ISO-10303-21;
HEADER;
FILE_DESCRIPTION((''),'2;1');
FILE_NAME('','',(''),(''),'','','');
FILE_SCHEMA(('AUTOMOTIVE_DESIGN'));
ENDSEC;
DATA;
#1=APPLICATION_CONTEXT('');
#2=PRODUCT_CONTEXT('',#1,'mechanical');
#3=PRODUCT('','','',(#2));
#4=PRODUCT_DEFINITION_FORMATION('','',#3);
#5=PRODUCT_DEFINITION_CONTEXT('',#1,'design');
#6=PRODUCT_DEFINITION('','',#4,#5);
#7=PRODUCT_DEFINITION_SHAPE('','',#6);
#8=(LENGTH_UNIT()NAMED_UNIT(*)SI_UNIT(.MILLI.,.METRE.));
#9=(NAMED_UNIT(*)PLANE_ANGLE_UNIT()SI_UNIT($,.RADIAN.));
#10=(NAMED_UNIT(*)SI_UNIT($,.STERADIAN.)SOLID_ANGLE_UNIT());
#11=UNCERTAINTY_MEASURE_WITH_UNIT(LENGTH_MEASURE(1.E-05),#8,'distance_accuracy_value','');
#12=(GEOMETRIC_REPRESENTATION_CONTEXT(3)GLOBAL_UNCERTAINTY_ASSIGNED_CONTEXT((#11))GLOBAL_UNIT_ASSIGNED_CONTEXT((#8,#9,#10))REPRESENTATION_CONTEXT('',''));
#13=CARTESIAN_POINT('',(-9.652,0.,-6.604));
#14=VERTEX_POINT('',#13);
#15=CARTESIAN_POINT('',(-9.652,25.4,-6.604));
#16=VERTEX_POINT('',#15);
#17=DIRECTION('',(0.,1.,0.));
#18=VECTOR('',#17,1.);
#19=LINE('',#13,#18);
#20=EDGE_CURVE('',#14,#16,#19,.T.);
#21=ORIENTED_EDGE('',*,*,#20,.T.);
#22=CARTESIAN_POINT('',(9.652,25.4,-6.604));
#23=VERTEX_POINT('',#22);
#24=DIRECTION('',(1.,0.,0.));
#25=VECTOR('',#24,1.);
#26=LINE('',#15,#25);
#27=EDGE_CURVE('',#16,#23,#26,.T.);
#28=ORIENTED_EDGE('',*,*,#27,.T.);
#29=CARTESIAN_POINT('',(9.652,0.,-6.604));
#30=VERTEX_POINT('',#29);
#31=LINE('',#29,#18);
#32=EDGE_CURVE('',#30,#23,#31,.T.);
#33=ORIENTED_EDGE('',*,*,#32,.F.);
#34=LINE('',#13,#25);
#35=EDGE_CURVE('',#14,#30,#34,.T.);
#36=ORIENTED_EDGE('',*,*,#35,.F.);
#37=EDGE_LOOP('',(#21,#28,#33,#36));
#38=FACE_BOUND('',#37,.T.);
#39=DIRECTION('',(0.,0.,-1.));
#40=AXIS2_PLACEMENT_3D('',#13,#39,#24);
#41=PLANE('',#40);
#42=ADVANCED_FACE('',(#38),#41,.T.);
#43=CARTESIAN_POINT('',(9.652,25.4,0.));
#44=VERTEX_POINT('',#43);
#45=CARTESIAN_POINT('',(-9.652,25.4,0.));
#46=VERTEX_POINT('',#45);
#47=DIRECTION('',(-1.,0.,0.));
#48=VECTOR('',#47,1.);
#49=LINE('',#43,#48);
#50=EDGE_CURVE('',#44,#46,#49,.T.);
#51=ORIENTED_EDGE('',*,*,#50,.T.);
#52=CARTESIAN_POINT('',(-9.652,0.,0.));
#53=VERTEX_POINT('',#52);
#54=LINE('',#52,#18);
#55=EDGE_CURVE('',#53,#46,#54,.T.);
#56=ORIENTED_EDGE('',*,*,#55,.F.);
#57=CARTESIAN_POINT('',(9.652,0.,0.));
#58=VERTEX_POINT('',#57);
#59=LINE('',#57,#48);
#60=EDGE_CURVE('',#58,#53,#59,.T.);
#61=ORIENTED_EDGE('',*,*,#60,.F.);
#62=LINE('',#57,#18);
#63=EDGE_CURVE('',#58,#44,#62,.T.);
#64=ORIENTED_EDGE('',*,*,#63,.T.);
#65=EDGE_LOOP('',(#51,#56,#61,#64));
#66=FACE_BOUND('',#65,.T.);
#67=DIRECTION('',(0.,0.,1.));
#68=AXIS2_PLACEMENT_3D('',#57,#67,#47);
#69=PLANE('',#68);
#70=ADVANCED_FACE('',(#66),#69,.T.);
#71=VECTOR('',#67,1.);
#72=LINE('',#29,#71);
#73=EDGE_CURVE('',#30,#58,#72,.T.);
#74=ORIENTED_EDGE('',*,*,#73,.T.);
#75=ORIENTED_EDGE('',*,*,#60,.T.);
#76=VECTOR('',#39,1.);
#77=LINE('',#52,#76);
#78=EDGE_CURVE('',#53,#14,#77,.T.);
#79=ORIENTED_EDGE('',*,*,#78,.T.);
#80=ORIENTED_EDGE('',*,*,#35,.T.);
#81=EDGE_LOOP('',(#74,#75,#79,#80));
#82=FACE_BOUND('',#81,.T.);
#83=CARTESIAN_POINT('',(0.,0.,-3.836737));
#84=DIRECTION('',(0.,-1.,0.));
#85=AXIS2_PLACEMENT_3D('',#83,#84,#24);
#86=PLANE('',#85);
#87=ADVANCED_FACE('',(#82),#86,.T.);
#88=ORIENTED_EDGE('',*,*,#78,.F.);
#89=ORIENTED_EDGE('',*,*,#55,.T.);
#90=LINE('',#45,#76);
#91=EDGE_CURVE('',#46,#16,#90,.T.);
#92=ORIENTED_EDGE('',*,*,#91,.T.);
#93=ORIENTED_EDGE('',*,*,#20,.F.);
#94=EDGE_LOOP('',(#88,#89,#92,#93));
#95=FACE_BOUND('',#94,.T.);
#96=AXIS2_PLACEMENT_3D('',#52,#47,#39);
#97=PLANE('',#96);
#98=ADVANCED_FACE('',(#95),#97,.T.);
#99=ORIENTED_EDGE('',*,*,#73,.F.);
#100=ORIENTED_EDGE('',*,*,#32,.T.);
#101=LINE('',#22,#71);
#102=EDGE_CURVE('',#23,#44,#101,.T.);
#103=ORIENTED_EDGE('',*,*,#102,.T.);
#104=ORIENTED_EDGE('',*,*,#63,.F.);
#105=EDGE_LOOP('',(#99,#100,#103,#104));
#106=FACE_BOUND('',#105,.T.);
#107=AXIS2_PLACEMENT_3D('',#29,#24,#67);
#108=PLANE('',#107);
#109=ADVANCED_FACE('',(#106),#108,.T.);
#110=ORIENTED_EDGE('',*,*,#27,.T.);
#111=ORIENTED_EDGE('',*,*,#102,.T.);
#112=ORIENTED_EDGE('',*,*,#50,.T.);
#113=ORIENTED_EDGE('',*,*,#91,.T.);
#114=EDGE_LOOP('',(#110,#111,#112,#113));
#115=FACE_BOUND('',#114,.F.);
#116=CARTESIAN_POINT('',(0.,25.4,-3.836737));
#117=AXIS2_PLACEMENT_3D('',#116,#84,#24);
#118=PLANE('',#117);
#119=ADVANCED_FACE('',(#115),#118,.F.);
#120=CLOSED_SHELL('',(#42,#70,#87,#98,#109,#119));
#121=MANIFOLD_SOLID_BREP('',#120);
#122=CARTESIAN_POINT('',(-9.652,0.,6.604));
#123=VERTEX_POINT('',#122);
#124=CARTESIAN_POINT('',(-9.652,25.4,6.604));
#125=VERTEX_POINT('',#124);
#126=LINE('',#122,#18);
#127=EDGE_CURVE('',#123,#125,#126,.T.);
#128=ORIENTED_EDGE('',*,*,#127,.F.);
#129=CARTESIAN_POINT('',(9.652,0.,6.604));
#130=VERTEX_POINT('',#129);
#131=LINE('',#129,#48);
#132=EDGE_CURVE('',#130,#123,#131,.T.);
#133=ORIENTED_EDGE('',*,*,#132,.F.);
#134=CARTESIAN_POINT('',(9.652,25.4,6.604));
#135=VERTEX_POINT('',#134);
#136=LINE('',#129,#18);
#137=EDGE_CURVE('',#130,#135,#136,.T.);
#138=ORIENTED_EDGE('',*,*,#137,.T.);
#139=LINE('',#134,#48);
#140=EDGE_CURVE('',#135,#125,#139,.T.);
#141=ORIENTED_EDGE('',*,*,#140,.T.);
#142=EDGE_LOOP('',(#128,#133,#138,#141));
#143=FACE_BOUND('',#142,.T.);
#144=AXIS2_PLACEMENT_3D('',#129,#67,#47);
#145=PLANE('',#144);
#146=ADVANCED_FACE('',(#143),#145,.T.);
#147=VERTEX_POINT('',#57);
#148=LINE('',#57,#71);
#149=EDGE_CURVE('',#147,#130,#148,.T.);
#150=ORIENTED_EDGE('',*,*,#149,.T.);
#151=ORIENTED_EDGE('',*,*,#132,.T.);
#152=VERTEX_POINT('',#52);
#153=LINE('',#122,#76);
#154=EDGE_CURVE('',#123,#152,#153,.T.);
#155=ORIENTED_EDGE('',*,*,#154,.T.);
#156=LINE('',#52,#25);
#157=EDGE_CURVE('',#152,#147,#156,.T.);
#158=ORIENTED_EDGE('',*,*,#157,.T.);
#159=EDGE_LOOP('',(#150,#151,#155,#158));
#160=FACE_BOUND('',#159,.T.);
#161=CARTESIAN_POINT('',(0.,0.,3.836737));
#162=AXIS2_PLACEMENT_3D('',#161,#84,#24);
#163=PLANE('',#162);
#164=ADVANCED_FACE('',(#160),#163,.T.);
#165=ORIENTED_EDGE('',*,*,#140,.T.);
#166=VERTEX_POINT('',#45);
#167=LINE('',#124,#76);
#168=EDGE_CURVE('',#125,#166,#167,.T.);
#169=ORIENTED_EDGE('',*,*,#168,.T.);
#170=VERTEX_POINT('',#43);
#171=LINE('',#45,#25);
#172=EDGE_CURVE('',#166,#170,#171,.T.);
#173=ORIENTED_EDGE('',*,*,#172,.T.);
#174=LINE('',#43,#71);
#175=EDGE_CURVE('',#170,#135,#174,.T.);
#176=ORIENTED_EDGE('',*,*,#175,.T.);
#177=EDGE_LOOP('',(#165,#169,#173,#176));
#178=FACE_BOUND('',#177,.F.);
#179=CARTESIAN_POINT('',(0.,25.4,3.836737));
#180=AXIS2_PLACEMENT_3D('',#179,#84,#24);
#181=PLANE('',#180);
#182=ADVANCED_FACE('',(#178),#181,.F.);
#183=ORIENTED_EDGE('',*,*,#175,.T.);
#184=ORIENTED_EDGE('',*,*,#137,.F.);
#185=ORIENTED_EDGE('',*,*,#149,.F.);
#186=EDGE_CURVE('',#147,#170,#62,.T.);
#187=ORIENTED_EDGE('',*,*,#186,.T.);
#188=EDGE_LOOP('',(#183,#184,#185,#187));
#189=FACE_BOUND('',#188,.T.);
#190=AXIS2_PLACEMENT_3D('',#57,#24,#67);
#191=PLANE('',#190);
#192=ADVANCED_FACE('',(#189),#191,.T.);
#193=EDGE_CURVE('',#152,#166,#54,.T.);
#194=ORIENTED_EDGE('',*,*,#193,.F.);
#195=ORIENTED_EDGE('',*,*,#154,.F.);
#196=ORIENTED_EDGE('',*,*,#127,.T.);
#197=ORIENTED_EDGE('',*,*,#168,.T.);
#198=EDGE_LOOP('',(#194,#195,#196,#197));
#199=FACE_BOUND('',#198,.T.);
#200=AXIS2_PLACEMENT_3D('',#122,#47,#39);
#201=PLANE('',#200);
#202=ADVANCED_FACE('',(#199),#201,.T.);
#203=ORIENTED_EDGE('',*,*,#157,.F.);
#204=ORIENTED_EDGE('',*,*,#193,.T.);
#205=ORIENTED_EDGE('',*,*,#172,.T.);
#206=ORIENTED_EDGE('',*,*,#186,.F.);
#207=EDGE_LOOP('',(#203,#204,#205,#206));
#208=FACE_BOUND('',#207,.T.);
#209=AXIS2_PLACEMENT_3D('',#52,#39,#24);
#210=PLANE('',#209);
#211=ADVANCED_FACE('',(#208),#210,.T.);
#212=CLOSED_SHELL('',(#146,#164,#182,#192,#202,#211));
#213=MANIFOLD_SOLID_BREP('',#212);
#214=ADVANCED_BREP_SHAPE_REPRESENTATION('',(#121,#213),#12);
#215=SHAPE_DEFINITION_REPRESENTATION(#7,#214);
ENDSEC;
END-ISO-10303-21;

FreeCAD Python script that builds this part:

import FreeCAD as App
import Part
import Sketcher
from FreeCAD import Vector
Q = App.Units.Quantity


def add_polygon(sketch, points):
    """Adds a closed chain of lines whose ends are joined by coincident constraints."""
    first, n = sketch.GeometryCount, len(points)
    for a, b in zip(points, points[1:] + points[:1]):
        sketch.addGeometry(Part.LineSegment(App.Vector(*a, 0), App.Vector(*b, 0)), False)
    for i in range(n):
        sketch.addConstraint(Sketcher.Constraint("Coincident", first + i, 2, first + (i + 1) % n, 1))

doc = App.newDocument("Part")
params = doc.addObject("Spreadsheet::Sheet", "Params")
for row, (alias, value) in enumerate([
    ("sketch1_width", "0.76 in"),
    ("sketch1_height", "0.26 in"),
    ("pad1_length", "1 in"),
    ("sketch2_width", "0.76 in"),
    ("sketch2_height", "0.26 in"),
    ("pad2_length", "1 in"),
], start=1):
    params.set(f"A{row}", alias)
    params.set(f"B{row}", "=" + value)
    params.setAlias(f"B{row}", alias)

body = doc.addObject("PartDesign::Body", "Body")

# Sketch on XZ plane
sketch1 = doc.addObject("Sketcher::SketchObject", "Sketch")
body.addObject(sketch1)
sketch1.AttachmentSupport = (doc.XZ_Plane, [""])
sketch1.MapMode = "FlatFace"
add_polygon(sketch1, [(10, 0), (10, 7), (-10, 7), (-10, 0)])  # lines 0-3
sketch1.addConstraint([
    Sketcher.Constraint("Vertical", 0),
    Sketcher.Constraint("Horizontal", 1),
    Sketcher.Constraint("Vertical", 2),
    Sketcher.Constraint("Horizontal", 3),
    Sketcher.Constraint("Symmetric", 2, 2, 3, 2, -1, 1),
    Sketcher.Constraint("DistanceX", 1, 2, 1, 1, Q("0.76 in")),
    Sketcher.Constraint("DistanceY", 0, 1, 0, 2, Q("0.26 in")),
])
sketch1.setExpression("Constraints[9]", "Params.sketch1_width")
sketch1.setExpression("Constraints[10]", "Params.sketch1_height")
pad1 = doc.addObject("PartDesign::Pad", "Pad")
body.addObject(pad1)
pad1.Profile = sketch1
pad1.setExpression("Length", "Params.pad1_length")
pad1.Reversed = True
body2 = doc.addObject("PartDesign::Body", "Body001")

# Sketch on XZ plane
sketch2 = doc.addObject("Sketcher::SketchObject", "Sketch001")
body2.addObject(sketch2)
sketch2.AttachmentSupport = (doc.getObject("XZ_Plane001"), [""])
sketch2.MapMode = "FlatFace"
add_polygon(sketch2, [(10, -7), (10, 0), (-10, 0), (-10, -7)])  # lines 0-3
sketch2.addConstraint([
    Sketcher.Constraint("Vertical", 0),
    Sketcher.Constraint("Horizontal", 1),
    Sketcher.Constraint("Vertical", 2),
    Sketcher.Constraint("Horizontal", 3),
    Sketcher.Constraint("Symmetric", 0, 2, 1, 2, -1, 1),
    Sketcher.Constraint("DistanceX", 1, 2, 1, 1, Q("0.76 in")),
    Sketcher.Constraint("DistanceY", 0, 1, 0, 2, Q("0.26 in")),
])
sketch2.setExpression("Constraints[9]", "Params.sketch2_width")
sketch2.setExpression("Constraints[10]", "Params.sketch2_height")
pad2 = doc.addObject("PartDesign::Pad", "Pad001")
body2.addObject(pad2)
pad2.Profile = sketch2
pad2.setExpression("Length", "Params.pad2_length")
pad2.Reversed = True

doc.recompute()
